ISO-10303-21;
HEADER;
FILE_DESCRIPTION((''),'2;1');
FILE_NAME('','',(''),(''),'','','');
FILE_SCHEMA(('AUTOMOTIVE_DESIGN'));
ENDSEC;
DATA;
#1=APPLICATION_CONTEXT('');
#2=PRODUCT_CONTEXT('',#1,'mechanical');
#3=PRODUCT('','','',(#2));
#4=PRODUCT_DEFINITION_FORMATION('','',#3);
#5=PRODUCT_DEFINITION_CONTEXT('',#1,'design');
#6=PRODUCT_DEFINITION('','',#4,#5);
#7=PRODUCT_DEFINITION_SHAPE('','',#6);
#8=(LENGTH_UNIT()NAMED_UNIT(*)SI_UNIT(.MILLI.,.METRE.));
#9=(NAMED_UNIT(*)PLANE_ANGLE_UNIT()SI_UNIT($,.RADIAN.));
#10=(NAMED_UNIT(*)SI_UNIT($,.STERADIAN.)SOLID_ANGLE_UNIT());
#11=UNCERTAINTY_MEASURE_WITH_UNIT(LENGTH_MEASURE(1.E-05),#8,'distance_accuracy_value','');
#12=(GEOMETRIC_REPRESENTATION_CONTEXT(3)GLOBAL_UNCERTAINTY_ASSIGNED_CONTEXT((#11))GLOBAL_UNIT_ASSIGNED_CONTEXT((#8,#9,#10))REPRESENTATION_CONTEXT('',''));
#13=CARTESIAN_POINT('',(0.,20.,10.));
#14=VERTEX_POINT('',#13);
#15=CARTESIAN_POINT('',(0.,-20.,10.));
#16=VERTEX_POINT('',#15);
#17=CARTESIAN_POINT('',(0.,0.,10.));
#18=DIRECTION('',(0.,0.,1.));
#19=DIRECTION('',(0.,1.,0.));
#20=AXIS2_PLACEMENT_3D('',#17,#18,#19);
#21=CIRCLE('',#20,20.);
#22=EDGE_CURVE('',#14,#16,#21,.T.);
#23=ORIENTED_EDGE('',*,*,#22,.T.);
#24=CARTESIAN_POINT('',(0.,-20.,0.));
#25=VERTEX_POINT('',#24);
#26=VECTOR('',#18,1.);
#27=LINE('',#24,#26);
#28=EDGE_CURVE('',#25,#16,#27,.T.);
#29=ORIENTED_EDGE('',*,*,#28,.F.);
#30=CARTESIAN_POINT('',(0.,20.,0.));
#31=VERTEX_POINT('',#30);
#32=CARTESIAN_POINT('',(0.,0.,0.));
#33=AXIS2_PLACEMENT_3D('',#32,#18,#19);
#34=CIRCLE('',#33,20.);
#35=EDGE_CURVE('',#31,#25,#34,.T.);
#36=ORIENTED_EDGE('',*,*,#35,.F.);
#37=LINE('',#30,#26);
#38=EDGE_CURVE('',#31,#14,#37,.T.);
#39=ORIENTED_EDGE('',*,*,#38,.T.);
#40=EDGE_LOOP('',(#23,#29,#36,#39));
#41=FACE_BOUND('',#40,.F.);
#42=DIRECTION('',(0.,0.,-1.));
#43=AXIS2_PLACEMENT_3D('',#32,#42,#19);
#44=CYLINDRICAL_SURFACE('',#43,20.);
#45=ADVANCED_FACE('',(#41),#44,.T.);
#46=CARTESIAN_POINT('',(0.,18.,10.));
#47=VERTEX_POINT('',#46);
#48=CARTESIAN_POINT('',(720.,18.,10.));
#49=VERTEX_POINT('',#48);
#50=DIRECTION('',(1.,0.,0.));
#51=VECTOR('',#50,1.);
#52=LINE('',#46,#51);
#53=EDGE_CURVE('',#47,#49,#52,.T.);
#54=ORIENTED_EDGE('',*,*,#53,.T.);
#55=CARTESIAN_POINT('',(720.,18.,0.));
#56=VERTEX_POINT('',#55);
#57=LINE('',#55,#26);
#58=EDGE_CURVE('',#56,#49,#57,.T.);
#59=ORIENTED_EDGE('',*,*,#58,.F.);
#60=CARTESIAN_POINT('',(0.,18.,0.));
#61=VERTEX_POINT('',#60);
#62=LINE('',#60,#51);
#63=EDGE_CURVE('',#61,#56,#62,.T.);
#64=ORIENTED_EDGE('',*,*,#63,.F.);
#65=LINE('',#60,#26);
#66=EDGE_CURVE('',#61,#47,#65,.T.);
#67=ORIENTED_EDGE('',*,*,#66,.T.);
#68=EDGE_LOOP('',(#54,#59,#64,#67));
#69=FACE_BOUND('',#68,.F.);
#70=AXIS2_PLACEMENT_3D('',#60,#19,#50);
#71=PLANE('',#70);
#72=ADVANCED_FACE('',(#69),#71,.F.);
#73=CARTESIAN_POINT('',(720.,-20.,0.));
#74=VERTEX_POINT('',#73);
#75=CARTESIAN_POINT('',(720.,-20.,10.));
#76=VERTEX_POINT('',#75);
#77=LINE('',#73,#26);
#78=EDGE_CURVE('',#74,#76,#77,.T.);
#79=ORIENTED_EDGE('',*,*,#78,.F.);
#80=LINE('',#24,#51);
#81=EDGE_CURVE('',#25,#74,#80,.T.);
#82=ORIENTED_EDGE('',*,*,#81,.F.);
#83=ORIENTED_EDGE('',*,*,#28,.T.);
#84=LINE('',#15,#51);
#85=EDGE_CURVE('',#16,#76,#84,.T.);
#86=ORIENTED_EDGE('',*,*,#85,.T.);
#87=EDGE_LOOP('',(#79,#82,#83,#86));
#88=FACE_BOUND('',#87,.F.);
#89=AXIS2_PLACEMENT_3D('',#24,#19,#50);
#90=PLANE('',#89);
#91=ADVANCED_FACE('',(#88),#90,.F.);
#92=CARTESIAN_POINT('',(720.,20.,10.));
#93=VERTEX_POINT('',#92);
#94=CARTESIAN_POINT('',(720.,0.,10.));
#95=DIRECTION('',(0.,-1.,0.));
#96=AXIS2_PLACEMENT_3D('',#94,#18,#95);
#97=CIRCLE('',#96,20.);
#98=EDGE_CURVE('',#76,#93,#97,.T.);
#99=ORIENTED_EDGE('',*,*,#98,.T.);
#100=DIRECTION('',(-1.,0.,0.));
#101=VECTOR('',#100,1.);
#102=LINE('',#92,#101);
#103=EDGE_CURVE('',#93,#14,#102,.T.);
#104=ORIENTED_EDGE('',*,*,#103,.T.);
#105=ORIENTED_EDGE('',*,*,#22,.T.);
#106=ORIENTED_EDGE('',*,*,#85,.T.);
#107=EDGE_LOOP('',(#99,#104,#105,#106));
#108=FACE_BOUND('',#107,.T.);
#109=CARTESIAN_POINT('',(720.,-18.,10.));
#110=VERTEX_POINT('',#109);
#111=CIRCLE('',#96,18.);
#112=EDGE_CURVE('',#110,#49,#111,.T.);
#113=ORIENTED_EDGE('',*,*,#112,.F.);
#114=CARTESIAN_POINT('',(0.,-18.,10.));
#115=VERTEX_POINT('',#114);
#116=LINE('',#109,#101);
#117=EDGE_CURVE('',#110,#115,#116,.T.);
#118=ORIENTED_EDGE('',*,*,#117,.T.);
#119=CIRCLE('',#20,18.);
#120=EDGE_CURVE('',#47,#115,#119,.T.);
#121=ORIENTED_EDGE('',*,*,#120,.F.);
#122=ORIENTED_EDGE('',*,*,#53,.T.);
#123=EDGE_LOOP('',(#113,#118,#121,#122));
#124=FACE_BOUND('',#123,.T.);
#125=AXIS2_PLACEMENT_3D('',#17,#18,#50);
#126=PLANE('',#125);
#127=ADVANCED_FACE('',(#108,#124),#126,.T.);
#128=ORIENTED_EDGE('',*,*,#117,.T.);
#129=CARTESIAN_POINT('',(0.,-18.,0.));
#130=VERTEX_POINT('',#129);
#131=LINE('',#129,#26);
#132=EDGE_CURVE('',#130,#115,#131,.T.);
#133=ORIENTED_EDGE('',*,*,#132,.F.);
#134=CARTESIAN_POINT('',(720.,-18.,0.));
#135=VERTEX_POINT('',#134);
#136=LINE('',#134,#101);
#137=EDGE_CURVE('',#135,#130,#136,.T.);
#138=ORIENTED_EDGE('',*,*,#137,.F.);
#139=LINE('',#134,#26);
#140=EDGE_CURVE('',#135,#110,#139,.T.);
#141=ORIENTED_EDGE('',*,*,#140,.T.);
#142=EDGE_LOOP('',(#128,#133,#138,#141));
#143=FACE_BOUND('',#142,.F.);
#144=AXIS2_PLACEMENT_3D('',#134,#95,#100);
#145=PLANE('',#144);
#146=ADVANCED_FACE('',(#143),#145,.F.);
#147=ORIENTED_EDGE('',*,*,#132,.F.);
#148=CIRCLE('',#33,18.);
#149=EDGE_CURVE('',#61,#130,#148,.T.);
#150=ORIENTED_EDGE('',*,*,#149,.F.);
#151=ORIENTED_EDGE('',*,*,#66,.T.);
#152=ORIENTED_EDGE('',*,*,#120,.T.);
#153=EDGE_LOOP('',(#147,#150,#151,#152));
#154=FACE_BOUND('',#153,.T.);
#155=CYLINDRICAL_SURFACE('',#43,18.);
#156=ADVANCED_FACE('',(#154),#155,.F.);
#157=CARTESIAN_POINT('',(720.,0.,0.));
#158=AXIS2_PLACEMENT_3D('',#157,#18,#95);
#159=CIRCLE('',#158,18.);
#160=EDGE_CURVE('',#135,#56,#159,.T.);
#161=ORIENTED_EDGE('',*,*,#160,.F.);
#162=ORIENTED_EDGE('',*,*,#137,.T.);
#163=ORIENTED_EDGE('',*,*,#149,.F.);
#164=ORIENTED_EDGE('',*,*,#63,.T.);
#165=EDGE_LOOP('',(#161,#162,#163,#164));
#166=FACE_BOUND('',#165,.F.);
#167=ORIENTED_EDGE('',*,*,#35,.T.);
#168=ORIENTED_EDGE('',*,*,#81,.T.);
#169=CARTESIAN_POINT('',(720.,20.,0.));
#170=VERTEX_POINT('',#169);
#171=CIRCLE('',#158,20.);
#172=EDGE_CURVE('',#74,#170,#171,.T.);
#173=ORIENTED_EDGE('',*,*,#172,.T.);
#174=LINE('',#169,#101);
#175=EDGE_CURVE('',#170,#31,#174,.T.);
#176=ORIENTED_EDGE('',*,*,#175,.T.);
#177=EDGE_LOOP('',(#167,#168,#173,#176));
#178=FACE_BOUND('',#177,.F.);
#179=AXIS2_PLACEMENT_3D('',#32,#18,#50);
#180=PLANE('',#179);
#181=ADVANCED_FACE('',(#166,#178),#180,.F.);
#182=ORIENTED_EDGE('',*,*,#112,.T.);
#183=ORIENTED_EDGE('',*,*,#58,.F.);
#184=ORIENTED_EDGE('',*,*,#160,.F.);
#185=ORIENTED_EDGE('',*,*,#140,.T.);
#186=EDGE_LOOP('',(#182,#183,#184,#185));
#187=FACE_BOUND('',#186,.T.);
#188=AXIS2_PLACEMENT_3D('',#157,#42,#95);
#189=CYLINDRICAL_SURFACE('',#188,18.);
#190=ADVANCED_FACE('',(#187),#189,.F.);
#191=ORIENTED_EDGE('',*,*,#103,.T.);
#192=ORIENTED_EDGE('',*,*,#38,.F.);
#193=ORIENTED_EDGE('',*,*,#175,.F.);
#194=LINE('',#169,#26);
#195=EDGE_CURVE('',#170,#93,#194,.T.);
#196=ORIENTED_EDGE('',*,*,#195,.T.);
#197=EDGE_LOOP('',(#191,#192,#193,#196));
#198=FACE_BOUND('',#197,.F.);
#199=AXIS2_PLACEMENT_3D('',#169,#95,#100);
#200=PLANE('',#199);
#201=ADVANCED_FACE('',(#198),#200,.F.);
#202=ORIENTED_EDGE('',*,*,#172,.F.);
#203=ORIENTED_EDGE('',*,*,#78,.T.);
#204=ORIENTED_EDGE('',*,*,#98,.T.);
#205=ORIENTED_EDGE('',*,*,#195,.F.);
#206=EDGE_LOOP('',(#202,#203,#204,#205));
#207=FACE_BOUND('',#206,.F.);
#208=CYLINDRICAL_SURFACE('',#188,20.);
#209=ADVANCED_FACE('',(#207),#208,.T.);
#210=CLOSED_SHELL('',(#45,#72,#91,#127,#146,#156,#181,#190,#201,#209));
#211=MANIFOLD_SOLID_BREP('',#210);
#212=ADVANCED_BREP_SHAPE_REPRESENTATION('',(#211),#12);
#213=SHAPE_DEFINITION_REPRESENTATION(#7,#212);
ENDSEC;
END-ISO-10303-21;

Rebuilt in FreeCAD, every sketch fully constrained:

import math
import FreeCAD as App
import Part
import Sketcher
Q = App.Units.Quantity

doc = App.newDocument("Part")
body = doc.addObject("PartDesign::Body", "Body")

# Sketch on XY plane
sketch1 = body.newObject("Sketcher::SketchObject", "Sketch")
sketch1.AttachmentSupport = (doc.getObject("XY_Plane"), [""])
sketch1.MapMode = "FlatFace"
sketch1.addGeometry([
    Part.ArcOfCircle(Part.Circle(App.Vector(720, 0, 0), App.Vector(0, 0, 1), 20), math.radians(-90), math.radians(90)),  # 0
    Part.LineSegment(App.Vector(720, 20, 0), App.Vector(0, 20, 0)),  # 1
    Part.ArcOfCircle(Part.Circle(App.Vector(0, 0, 0), App.Vector(0, 0, 1), 20), math.radians(90), math.radians(270)),  # 2
    Part.LineSegment(App.Vector(0, -20, 0), App.Vector(720, -20, 0)),  # 3
    Part.ArcOfCircle(Part.Circle(App.Vector(0, 0, 0), App.Vector(0, 0, 1), 18), math.radians(90), math.radians(270)),  # 4
    Part.LineSegment(App.Vector(0, 18, 0), App.Vector(720, 18, 0)),  # 5
    Part.ArcOfCircle(Part.Circle(App.Vector(720, 0, 0), App.Vector(0, 0, 1), 18), math.radians(-90), math.radians(90)),  # 6
    Part.LineSegment(App.Vector(720, -18, 0), App.Vector(0, -18, 0)),  # 7
], False)
sketch1.addConstraint([
    Sketcher.Constraint("Tangent", 0, 2, 1, 1),
    Sketcher.Constraint("Tangent", 1, 2, 2, 1),
    Sketcher.Constraint("Tangent", 2, 2, 3, 1),
    Sketcher.Constraint("Tangent", 3, 2, 0, 1),
    Sketcher.Constraint("Tangent", 4, 1, 5, 1),
    Sketcher.Constraint("Tangent", 5, 2, 6, 2),
    Sketcher.Constraint("Tangent", 6, 1, 7, 1),
    Sketcher.Constraint("Tangent", 7, 2, 4, 2),
    Sketcher.Constraint("Horizontal", 1),
    Sketcher.Constraint("Horizontal", 3),
    Sketcher.Constraint("Horizontal", 5),
    Sketcher.Constraint("Horizontal", 7),
    Sketcher.Constraint("Coincident", 2, 3, -1, 1),
    Sketcher.Constraint("Coincident", 4, 3, -1, 1),
    Sketcher.Constraint("Vertical", 6, 3, 0, 2),
    Sketcher.Constraint("Radius", 4, Q("18 mm")),
    Sketcher.Constraint("DistanceX", 1, 2, 1, 1, Q("720 mm")),
    Sketcher.Constraint("Radius", 0, Q("20 mm")),
])
pad1 = body.newObject("PartDesign::Pad", "Pad")
pad1.Profile = sketch1
pad1.Length = 10

doc.recompute()
